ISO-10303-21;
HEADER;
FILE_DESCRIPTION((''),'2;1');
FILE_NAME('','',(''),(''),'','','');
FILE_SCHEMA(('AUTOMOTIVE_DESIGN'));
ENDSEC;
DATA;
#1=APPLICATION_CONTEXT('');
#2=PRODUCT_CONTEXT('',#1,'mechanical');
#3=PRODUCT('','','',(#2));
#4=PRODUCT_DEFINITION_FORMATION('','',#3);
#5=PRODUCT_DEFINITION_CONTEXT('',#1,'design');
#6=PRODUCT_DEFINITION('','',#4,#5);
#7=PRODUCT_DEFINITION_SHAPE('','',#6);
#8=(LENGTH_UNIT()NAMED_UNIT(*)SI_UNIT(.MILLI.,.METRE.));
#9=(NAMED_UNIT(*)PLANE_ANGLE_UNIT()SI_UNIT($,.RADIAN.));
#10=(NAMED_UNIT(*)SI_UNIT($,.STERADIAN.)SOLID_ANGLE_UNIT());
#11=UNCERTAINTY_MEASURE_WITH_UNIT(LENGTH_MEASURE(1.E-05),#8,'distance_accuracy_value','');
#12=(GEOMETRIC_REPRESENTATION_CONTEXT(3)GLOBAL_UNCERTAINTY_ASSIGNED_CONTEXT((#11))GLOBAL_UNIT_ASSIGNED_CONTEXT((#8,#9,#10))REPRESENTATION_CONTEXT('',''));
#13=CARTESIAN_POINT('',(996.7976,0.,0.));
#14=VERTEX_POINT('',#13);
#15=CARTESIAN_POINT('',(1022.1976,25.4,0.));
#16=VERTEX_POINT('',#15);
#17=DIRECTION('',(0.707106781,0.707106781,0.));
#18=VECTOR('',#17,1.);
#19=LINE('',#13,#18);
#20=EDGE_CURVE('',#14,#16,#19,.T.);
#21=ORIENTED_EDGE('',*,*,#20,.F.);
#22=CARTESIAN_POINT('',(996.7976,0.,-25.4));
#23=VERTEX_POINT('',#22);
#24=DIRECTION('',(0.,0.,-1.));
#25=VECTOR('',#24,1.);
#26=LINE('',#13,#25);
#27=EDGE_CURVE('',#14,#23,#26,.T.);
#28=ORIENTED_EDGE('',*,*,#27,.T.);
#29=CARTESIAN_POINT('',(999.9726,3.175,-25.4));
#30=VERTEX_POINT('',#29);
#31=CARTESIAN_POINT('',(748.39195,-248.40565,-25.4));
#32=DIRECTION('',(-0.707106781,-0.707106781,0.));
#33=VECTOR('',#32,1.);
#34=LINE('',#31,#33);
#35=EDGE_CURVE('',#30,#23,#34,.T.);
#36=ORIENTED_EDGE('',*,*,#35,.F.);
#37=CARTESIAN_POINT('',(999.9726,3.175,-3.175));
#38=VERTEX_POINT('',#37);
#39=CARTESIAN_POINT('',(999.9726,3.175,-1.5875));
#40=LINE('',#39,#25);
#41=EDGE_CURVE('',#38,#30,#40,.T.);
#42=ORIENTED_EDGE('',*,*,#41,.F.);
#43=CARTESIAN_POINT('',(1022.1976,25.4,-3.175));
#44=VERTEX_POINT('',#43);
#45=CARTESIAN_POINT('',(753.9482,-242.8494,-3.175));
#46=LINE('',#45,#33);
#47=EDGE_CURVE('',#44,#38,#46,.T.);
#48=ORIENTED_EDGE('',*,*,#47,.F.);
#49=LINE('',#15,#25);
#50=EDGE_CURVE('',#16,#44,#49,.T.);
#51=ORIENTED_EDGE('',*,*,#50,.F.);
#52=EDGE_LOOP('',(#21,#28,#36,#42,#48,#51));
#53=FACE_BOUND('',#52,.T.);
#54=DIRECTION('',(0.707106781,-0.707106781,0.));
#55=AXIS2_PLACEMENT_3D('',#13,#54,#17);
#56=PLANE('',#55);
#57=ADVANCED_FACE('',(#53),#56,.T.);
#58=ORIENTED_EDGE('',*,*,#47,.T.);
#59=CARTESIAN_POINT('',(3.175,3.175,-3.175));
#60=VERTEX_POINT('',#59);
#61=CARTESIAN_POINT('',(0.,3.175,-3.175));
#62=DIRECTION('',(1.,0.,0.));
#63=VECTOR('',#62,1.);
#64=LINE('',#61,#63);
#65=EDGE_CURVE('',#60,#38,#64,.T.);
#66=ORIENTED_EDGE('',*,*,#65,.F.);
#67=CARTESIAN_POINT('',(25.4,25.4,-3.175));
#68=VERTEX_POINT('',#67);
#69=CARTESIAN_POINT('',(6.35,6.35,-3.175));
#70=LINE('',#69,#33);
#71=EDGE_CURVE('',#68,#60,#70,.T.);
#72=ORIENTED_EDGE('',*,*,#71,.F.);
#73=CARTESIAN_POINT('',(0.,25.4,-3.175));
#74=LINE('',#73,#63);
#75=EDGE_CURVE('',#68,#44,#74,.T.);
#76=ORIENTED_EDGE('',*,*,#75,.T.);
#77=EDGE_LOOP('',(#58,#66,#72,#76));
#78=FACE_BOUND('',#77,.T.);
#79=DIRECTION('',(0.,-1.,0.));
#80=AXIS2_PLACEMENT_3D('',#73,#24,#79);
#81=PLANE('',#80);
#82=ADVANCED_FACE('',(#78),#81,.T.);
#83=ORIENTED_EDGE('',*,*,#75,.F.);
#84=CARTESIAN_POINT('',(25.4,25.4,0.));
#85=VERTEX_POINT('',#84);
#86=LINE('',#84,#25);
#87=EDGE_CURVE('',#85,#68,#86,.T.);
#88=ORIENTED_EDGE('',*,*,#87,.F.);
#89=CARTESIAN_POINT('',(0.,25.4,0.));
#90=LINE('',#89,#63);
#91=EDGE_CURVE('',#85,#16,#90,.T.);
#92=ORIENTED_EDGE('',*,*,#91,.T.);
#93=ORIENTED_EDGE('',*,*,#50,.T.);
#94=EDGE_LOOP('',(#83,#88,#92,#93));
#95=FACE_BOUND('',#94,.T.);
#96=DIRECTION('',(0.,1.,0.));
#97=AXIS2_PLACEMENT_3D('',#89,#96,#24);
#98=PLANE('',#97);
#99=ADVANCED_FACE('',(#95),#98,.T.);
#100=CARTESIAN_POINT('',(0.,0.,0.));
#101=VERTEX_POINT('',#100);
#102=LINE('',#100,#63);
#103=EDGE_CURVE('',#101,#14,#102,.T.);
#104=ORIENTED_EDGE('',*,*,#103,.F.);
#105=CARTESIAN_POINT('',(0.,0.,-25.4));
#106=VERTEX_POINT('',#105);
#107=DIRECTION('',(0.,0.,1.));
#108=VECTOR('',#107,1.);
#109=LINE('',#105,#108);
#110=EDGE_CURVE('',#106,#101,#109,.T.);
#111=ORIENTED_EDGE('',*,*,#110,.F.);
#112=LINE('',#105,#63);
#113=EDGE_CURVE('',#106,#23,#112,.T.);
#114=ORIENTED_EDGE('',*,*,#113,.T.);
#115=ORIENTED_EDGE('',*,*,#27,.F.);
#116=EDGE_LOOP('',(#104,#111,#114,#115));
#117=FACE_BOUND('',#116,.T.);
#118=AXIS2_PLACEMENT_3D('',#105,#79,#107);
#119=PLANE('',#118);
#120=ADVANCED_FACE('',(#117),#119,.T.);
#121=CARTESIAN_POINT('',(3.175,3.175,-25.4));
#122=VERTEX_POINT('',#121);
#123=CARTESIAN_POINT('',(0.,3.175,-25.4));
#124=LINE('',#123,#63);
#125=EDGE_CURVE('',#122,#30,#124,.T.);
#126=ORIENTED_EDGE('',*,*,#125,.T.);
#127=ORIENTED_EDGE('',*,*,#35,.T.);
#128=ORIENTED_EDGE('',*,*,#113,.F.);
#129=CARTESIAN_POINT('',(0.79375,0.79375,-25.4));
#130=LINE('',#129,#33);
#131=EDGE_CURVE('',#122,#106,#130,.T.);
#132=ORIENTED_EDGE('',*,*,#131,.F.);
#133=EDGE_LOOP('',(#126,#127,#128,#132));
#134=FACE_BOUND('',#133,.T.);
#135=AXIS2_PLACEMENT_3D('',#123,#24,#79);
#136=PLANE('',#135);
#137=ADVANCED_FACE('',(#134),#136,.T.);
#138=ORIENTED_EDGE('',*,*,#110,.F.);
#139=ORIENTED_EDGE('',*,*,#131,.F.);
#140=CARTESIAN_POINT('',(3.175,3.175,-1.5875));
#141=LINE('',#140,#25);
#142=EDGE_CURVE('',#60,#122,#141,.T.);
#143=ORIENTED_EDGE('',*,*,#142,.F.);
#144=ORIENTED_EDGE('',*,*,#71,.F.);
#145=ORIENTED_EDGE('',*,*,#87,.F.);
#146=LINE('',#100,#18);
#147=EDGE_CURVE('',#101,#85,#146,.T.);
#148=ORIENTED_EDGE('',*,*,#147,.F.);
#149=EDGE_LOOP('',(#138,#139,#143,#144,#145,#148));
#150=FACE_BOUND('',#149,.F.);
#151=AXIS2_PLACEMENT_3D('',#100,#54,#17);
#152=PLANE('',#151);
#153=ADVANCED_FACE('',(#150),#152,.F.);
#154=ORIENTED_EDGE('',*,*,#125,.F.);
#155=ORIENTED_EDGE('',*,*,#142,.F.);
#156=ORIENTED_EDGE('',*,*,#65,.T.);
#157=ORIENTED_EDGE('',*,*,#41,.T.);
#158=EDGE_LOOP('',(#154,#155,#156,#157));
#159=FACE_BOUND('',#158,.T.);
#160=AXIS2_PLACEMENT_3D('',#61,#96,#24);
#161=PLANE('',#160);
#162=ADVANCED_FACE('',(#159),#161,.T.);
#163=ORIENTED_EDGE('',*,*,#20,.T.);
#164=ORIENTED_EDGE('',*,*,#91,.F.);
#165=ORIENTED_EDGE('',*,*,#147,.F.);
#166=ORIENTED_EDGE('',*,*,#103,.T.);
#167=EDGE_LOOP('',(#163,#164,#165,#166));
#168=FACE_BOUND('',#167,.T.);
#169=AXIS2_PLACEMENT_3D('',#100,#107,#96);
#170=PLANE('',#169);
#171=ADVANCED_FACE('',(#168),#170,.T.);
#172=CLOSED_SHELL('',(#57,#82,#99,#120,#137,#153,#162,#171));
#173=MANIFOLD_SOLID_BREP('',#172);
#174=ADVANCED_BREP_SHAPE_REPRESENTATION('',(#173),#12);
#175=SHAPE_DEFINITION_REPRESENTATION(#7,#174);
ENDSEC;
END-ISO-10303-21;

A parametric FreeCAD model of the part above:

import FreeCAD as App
import Part
import Sketcher

V = App.Vector
Q = App.Units.Quantity

doc = App.newDocument("Part")
body = doc.addObject("PartDesign::Body", "Body")

# Sketch on YZ plane
sketch1 = doc.addObject("Sketcher::SketchObject", "Sketch")
body.addObject(sketch1)
sketch1.AttachmentSupport = (doc.YZ_Plane, [""])
sketch1.MapMode = "FlatFace"
sketch1.addGeometry([
    Part.LineSegment(V(25.4, 0, 0), V(0, 0, 0)),  # 0
    Part.LineSegment(V(0, 0, 0), V(0, -25.4, 0)),  # 1
    Part.LineSegment(V(0, -25.4, 0), V(3.175, -25.4, 0)),  # 2
    Part.LineSegment(V(3.175, -25.4, 0), V(3.175, -3.175, 0)),  # 3
    Part.LineSegment(V(3.175, -3.175, 0), V(25.4, -3.175, 0)),  # 4
    Part.LineSegment(V(25.4, -3.175, 0), V(25.4, 0, 0)),  # 5
], False)
sketch1.addConstraint([
    Sketcher.Constraint("Coincident", 0, 2, 1, 1),
    Sketcher.Constraint("Coincident", 1, 2, 2, 1),
    Sketcher.Constraint("Coincident", 2, 2, 3, 1),
    Sketcher.Constraint("Coincident", 3, 2, 4, 1),
    Sketcher.Constraint("Coincident", 4, 2, 5, 1),
    Sketcher.Constraint("Coincident", 5, 2, 0, 1),
    Sketcher.Constraint("Horizontal", 0),
    Sketcher.Constraint("Vertical", 1),
    Sketcher.Constraint("Horizontal", 2),
    Sketcher.Constraint("Vertical", 3),
    Sketcher.Constraint("Horizontal", 4),
    Sketcher.Constraint("Vertical", 5),
    Sketcher.Constraint("Coincident", 0, 2, -1, 1),
    Sketcher.Constraint("Equal", 0, 1),
    Sketcher.Constraint("Equal", 4, 3),
    Sketcher.Constraint("DistanceX", 0, 2, 0, 1, Q("1 in")),
    Sketcher.Constraint("DistanceX", 2, 1, 2, 2, Q("0.125 in")),
])
pad1 = doc.addObject("PartDesign::Pad", "Pad")
body.addObject(pad1)
pad1.Profile = sketch1
pad1.Length = Q("40.244 in")

# Sketch on XY plane
sketch2 = doc.addObject("Sketcher::SketchObject", "Sketch001")
body.addObject(sketch2)
sketch2.AttachmentSupport = (doc.XY_Plane, [""])
sketch2.MapMode = "FlatFace"
sketch2.addGeometry([
    Part.LineSegment(V(0, 25.4, 0), V(0, 0, 0)),  # 0
    Part.LineSegment(V(0, 0, 0), V(25.4, 25.4, 0)),  # 1
    Part.LineSegment(V(25.4, 25.4, 0), V(0, 25.4, 0)),  # 2
    Part.LineSegment(V(1022.1976, 25.4, 0), V(996.7976, 0, 0)),  # 3
    Part.LineSegment(V(996.7976, 0, 0), V(1022.1976, 0, 0)),  # 4
    Part.LineSegment(V(1022.1976, 0, 0), V(1022.1976, 25.4, 0)),  # 5
], False)
sketch2.addConstraint([
    Sketcher.Constraint("Coincident", 0, 2, 1, 1),
    Sketcher.Constraint("Coincident", 1, 2, 2, 1),
    Sketcher.Constraint("Coincident", 2, 2, 0, 1),
    Sketcher.Constraint("Coincident", 3, 2, 4, 1),
    Sketcher.Constraint("Coincident", 4, 2, 5, 1),
    Sketcher.Constraint("Coincident", 5, 2, 3, 1),
    Sketcher.Constraint("Vertical", 0),
    Sketcher.Constraint("Horizontal", 2),
    Sketcher.Constraint("Horizontal", 4),
    Sketcher.Constraint("Vertical", 5),
    Sketcher.Constraint("Coincident", 0, 2, -1, 1),
    Sketcher.Constraint("PointOnObject", 3, 2, -1),
    Sketcher.Constraint("Parallel", 1, 3),
    Sketcher.Constraint("Horizontal", 2, 2, 5, 2),
    Sketcher.Constraint("Equal", 4, 0),
    Sketcher.Constraint("DistanceX", 2, 2, 2, 1, Q("1 in")),
    Sketcher.Constraint("DistanceX", -1, 1, 3, 2, Q("39.244 in")),
])
pocket1 = doc.addObject("PartDesign::Pocket", "Pocket")
body.addObject(pocket1)
pocket1.Profile = sketch2
pocket1.Length = Q("40.244 in")

doc.recompute()
